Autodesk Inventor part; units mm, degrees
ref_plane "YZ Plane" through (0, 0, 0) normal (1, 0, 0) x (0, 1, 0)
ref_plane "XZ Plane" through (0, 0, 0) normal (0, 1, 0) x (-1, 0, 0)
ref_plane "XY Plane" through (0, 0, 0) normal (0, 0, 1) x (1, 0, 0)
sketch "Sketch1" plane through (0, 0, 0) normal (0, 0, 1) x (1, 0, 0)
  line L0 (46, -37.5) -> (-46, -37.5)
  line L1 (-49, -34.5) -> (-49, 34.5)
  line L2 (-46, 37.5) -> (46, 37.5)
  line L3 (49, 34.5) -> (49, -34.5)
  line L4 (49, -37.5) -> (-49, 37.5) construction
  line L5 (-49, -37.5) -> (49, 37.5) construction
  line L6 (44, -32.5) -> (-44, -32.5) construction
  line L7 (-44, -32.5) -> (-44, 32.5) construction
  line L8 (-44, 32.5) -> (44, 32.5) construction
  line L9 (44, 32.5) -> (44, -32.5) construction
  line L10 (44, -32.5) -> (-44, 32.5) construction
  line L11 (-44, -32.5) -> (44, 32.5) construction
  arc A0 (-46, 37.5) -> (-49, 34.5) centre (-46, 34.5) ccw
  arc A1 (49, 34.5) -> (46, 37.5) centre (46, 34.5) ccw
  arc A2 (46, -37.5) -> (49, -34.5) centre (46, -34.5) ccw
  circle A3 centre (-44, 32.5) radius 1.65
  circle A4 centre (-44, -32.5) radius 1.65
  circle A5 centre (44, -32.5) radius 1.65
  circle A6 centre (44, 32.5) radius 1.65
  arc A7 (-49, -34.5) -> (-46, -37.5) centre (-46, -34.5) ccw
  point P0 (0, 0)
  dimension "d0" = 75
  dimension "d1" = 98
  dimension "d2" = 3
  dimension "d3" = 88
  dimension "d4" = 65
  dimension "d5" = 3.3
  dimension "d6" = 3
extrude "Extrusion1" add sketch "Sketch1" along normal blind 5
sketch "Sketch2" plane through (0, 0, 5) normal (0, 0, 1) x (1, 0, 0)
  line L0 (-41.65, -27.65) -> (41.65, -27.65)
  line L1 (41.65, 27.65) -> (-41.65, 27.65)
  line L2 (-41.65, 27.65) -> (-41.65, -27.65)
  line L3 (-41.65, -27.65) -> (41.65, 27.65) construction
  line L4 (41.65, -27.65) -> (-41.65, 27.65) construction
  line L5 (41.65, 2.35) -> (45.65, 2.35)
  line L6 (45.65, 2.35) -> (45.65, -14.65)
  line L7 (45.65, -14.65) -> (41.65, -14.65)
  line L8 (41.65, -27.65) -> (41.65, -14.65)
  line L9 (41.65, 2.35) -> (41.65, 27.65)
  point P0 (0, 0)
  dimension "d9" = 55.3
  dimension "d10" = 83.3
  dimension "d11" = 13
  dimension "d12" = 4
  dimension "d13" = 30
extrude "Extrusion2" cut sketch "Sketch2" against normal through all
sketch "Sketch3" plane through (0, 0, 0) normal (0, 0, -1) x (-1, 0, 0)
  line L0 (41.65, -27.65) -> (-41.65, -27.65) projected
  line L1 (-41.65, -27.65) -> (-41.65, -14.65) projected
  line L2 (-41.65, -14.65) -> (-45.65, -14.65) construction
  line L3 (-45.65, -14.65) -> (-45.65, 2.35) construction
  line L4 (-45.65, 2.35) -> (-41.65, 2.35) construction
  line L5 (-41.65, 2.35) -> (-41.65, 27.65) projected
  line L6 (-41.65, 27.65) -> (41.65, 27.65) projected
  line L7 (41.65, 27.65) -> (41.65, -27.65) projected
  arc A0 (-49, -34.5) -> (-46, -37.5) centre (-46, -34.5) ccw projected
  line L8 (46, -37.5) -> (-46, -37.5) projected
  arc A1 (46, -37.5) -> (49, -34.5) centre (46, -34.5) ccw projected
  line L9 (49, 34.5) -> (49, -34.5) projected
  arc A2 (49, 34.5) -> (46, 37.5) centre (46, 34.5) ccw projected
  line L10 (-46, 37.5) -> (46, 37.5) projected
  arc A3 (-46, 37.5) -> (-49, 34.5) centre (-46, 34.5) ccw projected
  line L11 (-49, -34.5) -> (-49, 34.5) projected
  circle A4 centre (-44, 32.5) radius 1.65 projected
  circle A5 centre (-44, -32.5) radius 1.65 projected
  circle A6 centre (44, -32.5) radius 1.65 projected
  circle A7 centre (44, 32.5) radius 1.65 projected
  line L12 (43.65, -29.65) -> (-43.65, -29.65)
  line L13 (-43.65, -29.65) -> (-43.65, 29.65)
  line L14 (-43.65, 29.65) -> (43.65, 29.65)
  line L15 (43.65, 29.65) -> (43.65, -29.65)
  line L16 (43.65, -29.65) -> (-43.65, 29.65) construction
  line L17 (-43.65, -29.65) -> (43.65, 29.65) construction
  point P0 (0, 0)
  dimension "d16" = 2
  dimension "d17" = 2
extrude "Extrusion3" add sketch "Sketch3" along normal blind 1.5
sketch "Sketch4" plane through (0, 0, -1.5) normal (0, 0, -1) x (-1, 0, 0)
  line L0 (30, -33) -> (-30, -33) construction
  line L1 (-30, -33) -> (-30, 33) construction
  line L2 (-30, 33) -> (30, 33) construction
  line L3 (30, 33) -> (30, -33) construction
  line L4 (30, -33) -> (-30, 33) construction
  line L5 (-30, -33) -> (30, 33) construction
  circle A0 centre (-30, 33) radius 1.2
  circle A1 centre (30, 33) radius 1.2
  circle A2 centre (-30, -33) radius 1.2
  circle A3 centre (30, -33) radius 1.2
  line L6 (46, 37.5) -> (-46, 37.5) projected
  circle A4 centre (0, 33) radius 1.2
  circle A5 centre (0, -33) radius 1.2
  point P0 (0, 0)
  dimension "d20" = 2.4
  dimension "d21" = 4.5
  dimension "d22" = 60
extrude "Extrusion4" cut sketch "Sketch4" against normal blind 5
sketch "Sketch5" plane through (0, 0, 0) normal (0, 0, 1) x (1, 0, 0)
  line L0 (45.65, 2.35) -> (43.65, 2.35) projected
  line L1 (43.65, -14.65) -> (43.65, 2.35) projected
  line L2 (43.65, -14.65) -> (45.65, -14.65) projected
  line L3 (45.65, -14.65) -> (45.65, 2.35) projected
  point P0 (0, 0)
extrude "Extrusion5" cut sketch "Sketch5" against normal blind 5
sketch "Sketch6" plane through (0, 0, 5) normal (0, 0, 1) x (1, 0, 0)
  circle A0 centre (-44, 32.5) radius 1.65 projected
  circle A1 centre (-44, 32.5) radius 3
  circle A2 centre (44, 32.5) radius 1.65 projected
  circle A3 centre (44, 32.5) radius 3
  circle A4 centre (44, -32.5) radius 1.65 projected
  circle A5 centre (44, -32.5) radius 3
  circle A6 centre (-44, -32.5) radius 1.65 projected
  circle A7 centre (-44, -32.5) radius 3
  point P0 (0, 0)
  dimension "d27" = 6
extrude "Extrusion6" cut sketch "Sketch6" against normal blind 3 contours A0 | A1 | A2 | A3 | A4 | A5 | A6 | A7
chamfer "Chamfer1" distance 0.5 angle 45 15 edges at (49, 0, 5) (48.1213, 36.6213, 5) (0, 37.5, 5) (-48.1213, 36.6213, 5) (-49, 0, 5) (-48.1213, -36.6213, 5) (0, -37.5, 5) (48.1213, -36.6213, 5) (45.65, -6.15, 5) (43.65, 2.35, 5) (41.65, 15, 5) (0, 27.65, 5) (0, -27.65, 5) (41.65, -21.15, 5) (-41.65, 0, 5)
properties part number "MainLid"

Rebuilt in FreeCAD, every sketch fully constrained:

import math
import FreeCAD as App
import Part
import Sketcher

V = App.Vector
Q = App.Units.Quantity


def edges_at(feature, points):
    """Names of the edges that pass closest to the given points."""
    edges = feature.Shape.Edges
    near = lambda p: min(range(len(edges)), key=lambda i: edges[i].distToShape(Part.Vertex(*p))[0])
    return sorted({f"Edge{near(p) + 1}" for p in points})

doc = App.newDocument("Part")
params = doc.addObject("Spreadsheet::Sheet", "Params")
for row, (alias, value) in enumerate([
    ("sketch1_radius", "3 mm"),
    ("sketch1_diameter", "3.3 mm"),
    ("sketch1_width", "92 mm"),
    ("sketch1_height", "69 mm"),
    ("pad1_length", "5 mm"),
    ("sketch2_width", "4 mm"),
    ("sketch2_height", "13 mm"),
    ("sketch2_width2", "83.3 mm"),
    ("sketch2_height2", "55.3 mm"),
    ("sketch3_radius", "3 mm"),
    ("sketch3_diameter", "3.3 mm"),
    ("sketch3_width", "92 mm"),
    ("sketch3_height", "69 mm"),
    ("sketch3_width2", "87.3 mm"),
    ("pad2_length", "1.5 mm"),
    ("sketch4_diameter", "2.4 mm"),
    ("pocket2_length", "5 mm"),
    ("sketch5_width", "2 mm"),
    ("sketch5_height", "17 mm"),
    ("pocket3_length", "5 mm"),
    ("sketch6_diameter", "6 mm"),
    ("pocket4_length", "3 mm"),
    ("chamfer_size", "0.5 mm"),
], start=1):
    params.set(f"A{row}", alias)
    params.set(f"B{row}", "=" + value)
    params.setAlias(f"B{row}", alias)

body = doc.addObject("PartDesign::Body", "Body")

sketch1 = body.newObject("Sketcher::SketchObject", "Sketch")
sketch1.AttachmentSupport = (doc.getObject("XY_Plane"), [""])
sketch1.MapMode = "FlatFace"
sketch1.addGeometry([
    Part.LineSegment(V(-46, -37.5, 0), V(46, -37.5, 0)),
    Part.ArcOfCircle(Part.Circle(V(46, -34.5, 0), V(0, 0, 1), 3), math.radians(-90), math.radians(0)),
    Part.LineSegment(V(49, -34.5, 0), V(49, 34.5, 0)),
    Part.ArcOfCircle(Part.Circle(V(46, 34.5, 0), V(0, 0, 1), 3), math.radians(0), math.radians(90)),
    Part.LineSegment(V(46, 37.5, 0), V(-46, 37.5, 0)),
    Part.ArcOfCircle(Part.Circle(V(-46, 34.5, 0), V(0, 0, 1), 3), math.radians(90), math.radians(180)),
    Part.LineSegment(V(-49, 34.5, 0), V(-49, -34.5, 0)),
    Part.ArcOfCircle(Part.Circle(V(-46, -34.5, 0), V(0, 0, 1), 3), math.radians(180), math.radians(270)),
    Part.Circle(V(-44, -32.5, 0), V(0, 0, 1), 1.6),
    Part.Circle(V(44, -32.5, 0), V(0, 0, 1), 1.6),
    Part.Circle(V(-44, 32.5, 0), V(0, 0, 1), 1.6),
    Part.Circle(V(44, 32.5, 0), V(0, 0, 1), 1.6),
], False)
sketch1.addConstraint([
    Sketcher.Constraint("Tangent", 0, 2, 1, 1),
    Sketcher.Constraint("Tangent", 1, 2, 2, 1),
    Sketcher.Constraint("Tangent", 2, 2, 3, 1),
    Sketcher.Constraint("Tangent", 3, 2, 4, 1),
    Sketcher.Constraint("Tangent", 4, 2, 5, 1),
    Sketcher.Constraint("Tangent", 5, 2, 6, 1),
    Sketcher.Constraint("Tangent", 6, 2, 7, 1),
    Sketcher.Constraint("Tangent", 7, 2, 0, 1),
    Sketcher.Constraint("Horizontal", 0),
    Sketcher.Constraint("Vertical", 2),
    Sketcher.Constraint("Horizontal", 4),
    Sketcher.Constraint("Vertical", 6),
    Sketcher.Constraint("Equal", 1, 3),
    Sketcher.Constraint("Equal", 3, 5),
    Sketcher.Constraint("Equal", 5, 7),
    Sketcher.Constraint("Equal", 8, 9),
    Sketcher.Constraint("Equal", 9, 10),
    Sketcher.Constraint("Equal", 10, 11),
    Sketcher.Constraint("Symmetric", 1, 3, 5, 3, -1, 1),
    Sketcher.Constraint("Symmetric", 9, 3, 10, 3, -1, 1),
    Sketcher.Constraint("Symmetric", 8, 3, 11, 3, -1, 1),
    Sketcher.Constraint("Symmetric", 8, 3, 9, 3, -2),
    Sketcher.Constraint("Radius", 1, Q("3 mm")),
    Sketcher.Constraint("Diameter", 8, Q("3.3 mm")),
    Sketcher.Constraint("DistanceX", 8, 3, 9, 3, Q("88 mm")),
    Sketcher.Constraint("DistanceY", 8, 3, 10, 3, Q("65 mm")),
    Sketcher.Constraint("DistanceX", 0, 1, 0, 2, Q("92 mm")),
    Sketcher.Constraint("DistanceY", 2, 1, 2, 2, Q("69 mm")),
])
sketch1.setExpression("Constraints[22]", "Params.sketch1_radius")
sketch1.setExpression("Constraints[23]", "Params.sketch1_diameter")
sketch1.setExpression("Constraints[26]", "Params.sketch1_width")
sketch1.setExpression("Constraints[27]", "Params.sketch1_height")
pad1 = body.newObject("PartDesign::Pad", "Pad")
pad1.Profile = sketch1
pad1.setExpression("Length", "Params.pad1_length")

sketch2 = body.newObject("Sketcher::SketchObject", "Sketch001")
sketch2.AttachmentSupport = (doc.getObject("XY_Plane"), [""])
sketch2.MapMode = "FlatFace"
sketch2.AttachmentOffset = App.Placement(V(0, 0, 5), App.Rotation())
sketch2.addGeometry([
    Part.LineSegment(V(-41.6, 27.6, 0), V(-41.6, -27.6, 0)),
    Part.LineSegment(V(-41.6, -27.6, 0), V(41.6, -27.6, 0)),
    Part.LineSegment(V(41.6, -27.6, 0), V(41.6, -14.7, 0)),
    Part.LineSegment(V(41.6, -14.7, 0), V(45.6, -14.7, 0)),
    Part.LineSegment(V(45.6, -14.7, 0), V(45.6, 2.4, 0)),
    Part.LineSegment(V(45.6, 2.4, 0), V(41.6, 2.4, 0)),
    Part.LineSegment(V(41.6, 2.4, 0), V(41.6, 27.6, 0)),
    Part.LineSegment(V(41.6, 27.6, 0), V(-41.6, 27.6, 0)),
], False)
sketch2.addConstraint([
    Sketcher.Constraint("Coincident", 0, 2, 1, 1),
    Sketcher.Constraint("Coincident", 1, 2, 2, 1),
    Sketcher.Constraint("Coincident", 2, 2, 3, 1),
    Sketcher.Constraint("Coincident", 3, 2, 4, 1),
    Sketcher.Constraint("Coincident", 4, 2, 5, 1),
    Sketcher.Constraint("Coincident", 5, 2, 6, 1),
    Sketcher.Constraint("Coincident", 6, 2, 7, 1),
    Sketcher.Constraint("Coincident", 7, 2, 0, 1),
    Sketcher.Constraint("Vertical", 0),
    Sketcher.Constraint("Horizontal", 1),
    Sketcher.Constraint("Vertical", 2),
    Sketcher.Constraint("Horizontal", 3),
    Sketcher.Constraint("Vertical", 4),
    Sketcher.Constraint("Horizontal", 5),
    Sketcher.Constraint("Vertical", 6),
    Sketcher.Constraint("Horizontal", 7),
    Sketcher.Constraint("Symmetric", 0, 2, 6, 2, -1, 1),
    Sketcher.Constraint("Vertical", 2, 2, 5, 2),
    Sketcher.Constraint("DistanceX", 3, 1, 3, 2, Q("4 mm")),
    Sketcher.Constraint("DistanceY", 2, 1, 2, 2, Q("13 mm")),
    Sketcher.Constraint("DistanceX", 1, 1, 1, 2, Q("83.3 mm")),
    Sketcher.Constraint("DistanceY", 0, 2, 0, 1, Q("55.3 mm")),
    Sketcher.Constraint("DistanceY", 1, 2, 4, 2, Q("30 mm")),
])
sketch2.setExpression("Constraints[18]", "Params.sketch2_width")
sketch2.setExpression("Constraints[19]", "Params.sketch2_height")
sketch2.setExpression("Constraints[20]", "Params.sketch2_width2")
sketch2.setExpression("Constraints[21]", "Params.sketch2_height2")
pocket1 = body.newObject("PartDesign::Pocket", "Pocket")
pocket1.Profile = sketch2
pocket1.Type = "ThroughAll"

sketch3 = body.newObject("Sketcher::SketchObject", "Sketch002")
sketch3.AttachmentSupport = (doc.getObject("XY_Plane"), [""])
sketch3.MapMode = "FlatFace"
sketch3.addGeometry([
    Part.LineSegment(V(49, 34.5, 0), V(49, -34.5, 0)),
    Part.ArcOfCircle(Part.Circle(V(46, -34.5, 0), V(0, 0, 1), 3), math.radians(-90), math.radians(0)),
    Part.LineSegment(V(46, -37.5, 0), V(-46, -37.5, 0)),
    Part.ArcOfCircle(Part.Circle(V(-46, -34.5, 0), V(0, 0, 1), 3), math.radians(180), math.radians(270)),
    Part.LineSegment(V(-49, -34.5, 0), V(-49, 34.5, 0)),
    Part.ArcOfCircle(Part.Circle(V(-46, 34.5, 0), V(0, 0, 1), 3), math.radians(90), math.radians(180)),
    Part.LineSegment(V(-46, 37.5, 0), V(46, 37.5, 0)),
    Part.ArcOfCircle(Part.Circle(V(46, 34.5, 0), V(0, 0, 1), 3), math.radians(0), math.radians(90)),
    Part.Circle(V(44, -32.5, 0), V(0, 0, 1), 1.6),
    Part.Circle(V(-44, -32.5, 0), V(0, 0, 1), 1.6),
    Part.LineSegment(V(-43.6, 29.6, 0), V(-43.6, -29.6, 0)),
    Part.LineSegment(V(-43.6, -29.6, 0), V(43.6, -29.6, 0)),
    Part.LineSegment(V(43.6, -29.6, 0), V(43.6, 29.6, 0)),
    Part.LineSegment(V(43.6, 29.6, 0), V(-43.6, 29.6, 0)),
    Part.Circle(V(44, 32.5, 0), V(0, 0, 1), 1.6),
    Part.Circle(V(-44, 32.5, 0), V(0, 0, 1), 1.6),
], False)
sketch3.addConstraint([
    Sketcher.Constraint("Tangent", 0, 2, 1, 2),
    Sketcher.Constraint("Tangent", 1, 1, 2, 1),
    Sketcher.Constraint("Tangent", 2, 2, 3, 2),
    Sketcher.Constraint("Tangent", 3, 1, 4, 1),
    Sketcher.Constraint("Tangent", 4, 2, 5, 2),
    Sketcher.Constraint("Tangent", 5, 1, 6, 1),
    Sketcher.Constraint("Tangent", 6, 2, 7, 2),
    Sketcher.Constraint("Tangent", 7, 1, 0, 1),
    Sketcher.Constraint("Coincident", 10, 2, 11, 1),
    Sketcher.Constraint("Coincident", 11, 2, 12, 1),
    Sketcher.Constraint("Coincident", 12, 2, 13, 1),
    Sketcher.Constraint("Coincident", 13, 2, 10, 1),
    Sketcher.Constraint("Vertical", 0),
    Sketcher.Constraint("Horizontal", 2),
    Sketcher.Constraint("Vertical", 4),
    Sketcher.Constraint("Horizontal", 6),
    Sketcher.Constraint("Vertical", 10),
    Sketcher.Constraint("Horizontal", 11),
    Sketcher.Constraint("Vertical", 12),
    Sketcher.Constraint("Horizontal", 13),
    Sketcher.Constraint("Equal", 1, 3),
    Sketcher.Constraint("Equal", 3, 5),
    Sketcher.Constraint("Equal", 5, 7),
    Sketcher.Constraint("Equal", 8, 9),
    Sketcher.Constraint("Equal", 9, 14),
    Sketcher.Constraint("Equal", 14, 15),
    Sketcher.Constraint("Symmetric", 1, 3, 5, 3, -1, 1),
    Sketcher.Constraint("Symmetric", 9, 3, 14, 3, -1, 1),
    Sketcher.Constraint("Symmetric", 8, 3, 15, 3, -1, 1),
    Sketcher.Constraint("Symmetric", 10, 2, 12, 2, -1, 1),
    Sketcher.Constraint("Symmetric", 8, 3, 9, 3, -2),
    Sketcher.Constraint("Radius", 1, Q("3 mm")),
    Sketcher.Constraint("DistanceX", 8, 3, 1, 3, Q("2 mm")),
    Sketcher.Constraint("DistanceY", 1, 3, 8, 3, Q("2 mm")),
    Sketcher.Constraint("Diameter", 8, Q("3.3 mm")),
    Sketcher.Constraint("DistanceX", 2, 2, 2, 1, Q("92 mm")),
    Sketcher.Constraint("DistanceY", 0, 2, 0, 1, Q("69 mm")),
    Sketcher.Constraint("DistanceX", 11, 1, 11, 2, Q("87.3 mm")),
    Sketcher.Constraint("DistanceY", 10, 2, 10, 1, Q("59.3 mm")),
])
sketch3.setExpression("Constraints[31]", "Params.sketch3_radius")
sketch3.setExpression("Constraints[34]", "Params.sketch3_diameter")
sketch3.setExpression("Constraints[35]", "Params.sketch3_width")
sketch3.setExpression("Constraints[36]", "Params.sketch3_height")
sketch3.setExpression("Constraints[37]", "Params.sketch3_width2")
pad2 = body.newObject("PartDesign::Pad", "Pad001")
pad2.Profile = sketch3
pad2.setExpression("Length", "Params.pad2_length")
pad2.Reversed = True

sketch4 = body.newObject("Sketcher::SketchObject", "Sketch003")
sketch4.AttachmentSupport = (doc.getObject("XY_Plane"), [""])
sketch4.MapMode = "FlatFace"
sketch4.AttachmentOffset = App.Placement(V(0, 0, -1.5), App.Rotation())
sketch4.addGeometry([
    Part.Circle(V(30, 33, 0), V(0, 0, 1), 1.2),
    Part.Circle(V(-30, 33, 0), V(0, 0, 1), 1.2),
    Part.Circle(V(30, -33, 0), V(0, 0, 1), 1.2),
    Part.Circle(V(-30, -33, 0), V(0, 0, 1), 1.2),
    Part.Circle(V(0, 33, 0), V(0, 0, 1), 1.2),
    Part.Circle(V(0, -33, 0), V(0, 0, 1), 1.2),
], False)
sketch4.addConstraint([
    Sketcher.Constraint("Equal", 0, 1),
    Sketcher.Constraint("Equal", 1, 2),
    Sketcher.Constraint("Equal", 2, 3),
    Sketcher.Constraint("Equal", 3, 4),
    Sketcher.Constraint("Equal", 4, 5),
    Sketcher.Constraint("Symmetric", 1, 3, 2, 3, -1, 1),
    Sketcher.Constraint("Symmetric", 0, 3, 3, 3, -1, 1),
    Sketcher.Constraint("Symmetric", 4, 3, 5, 3, -1, 1),
    Sketcher.Constraint("Symmetric", 0, 3, 1, 3, -2),
    Sketcher.Constraint("PointOnObject", 4, 3, -2),
    Sketcher.Constraint("Horizontal", 1, 3, 4, 3),
    Sketcher.Constraint("Diameter", 0, Q("2.4 mm")),
    Sketcher.Constraint("DistanceX", 1, 3, 0, 3, Q("60 mm")),
    Sketcher.Constraint("DistanceY", -1, 1, 0, 3, Q("33 mm")),
])
sketch4.setExpression("Constraints[11]", "Params.sketch4_diameter")
pocket2 = body.newObject("PartDesign::Pocket", "Pocket001")
pocket2.Profile = sketch4
pocket2.setExpression("Length", "Params.pocket2_length")
pocket2.Reversed = True

sketch5 = body.newObject("Sketcher::SketchObject", "Sketch004")
sketch5.AttachmentSupport = (doc.getObject("XY_Plane"), [""])
sketch5.MapMode = "FlatFace"
sketch5.addGeometry([
    Part.LineSegment(V(45.6, -14.7, 0), V(45.6, 2.4, 0)),
    Part.LineSegment(V(45.6, 2.4, 0), V(43.6, 2.4, 0)),
    Part.LineSegment(V(43.6, 2.4, 0), V(43.6, -14.7, 0)),
    Part.LineSegment(V(43.6, -14.7, 0), V(45.6, -14.7, 0)),
], False)
sketch5.addConstraint([
    Sketcher.Constraint("Coincident", 0, 2, 1, 1),
    Sketcher.Constraint("Coincident", 1, 2, 2, 1),
    Sketcher.Constraint("Coincident", 2, 2, 3, 1),
    Sketcher.Constraint("Coincident", 3, 2, 0, 1),
    Sketcher.Constraint("Vertical", 0),
    Sketcher.Constraint("Horizontal", 1),
    Sketcher.Constraint("Vertical", 2),
    Sketcher.Constraint("Horizontal", 3),
    Sketcher.Constraint("DistanceX", 1, 2, 1, 1, Q("2 mm")),
    Sketcher.Constraint("DistanceY", 0, 1, 0, 2, Q("17 mm")),
    Sketcher.Constraint("DistanceX", -1, 1, 0, 2, Q("45.65 mm")),
    Sketcher.Constraint("DistanceY", -1, 1, 0, 2, Q("2.35 mm")),
])
sketch5.setExpression("Constraints[8]", "Params.sketch5_width")
sketch5.setExpression("Constraints[9]", "Params.sketch5_height")
pocket3 = body.newObject("PartDesign::Pocket", "Pocket002")
pocket3.Profile = sketch5
pocket3.setExpression("Length", "Params.pocket3_length")

sketch6 = body.newObject("Sketcher::SketchObject", "Sketch005")
sketch6.AttachmentSupport = (doc.getObject("XY_Plane"), [""])
sketch6.MapMode = "FlatFace"
sketch6.AttachmentOffset = App.Placement(V(0, 0, 5), App.Rotation())
sketch6.addGeometry([
    Part.Circle(V(-44, 32.5, 0), V(0, 0, 1), 3),
    Part.Circle(V(44, 32.5, 0), V(0, 0, 1), 3),
    Part.Circle(V(44, -32.5, 0), V(0, 0, 1), 3),
    Part.Circle(V(-44, -32.5, 0), V(0, 0, 1), 3),
], False)
sketch6.addConstraint([
    Sketcher.Constraint("Equal", 0, 1),
    Sketcher.Constraint("Equal", 1, 2),
    Sketcher.Constraint("Equal", 2, 3),
    Sketcher.Constraint("Symmetric", 0, 3, 2, 3, -1, 1),
    Sketcher.Constraint("Symmetric", 1, 3, 3, 3, -1, 1),
    Sketcher.Constraint("Symmetric", 0, 3, 1, 3, -2),
    Sketcher.Constraint("Diameter", 0, Q("6 mm")),
    Sketcher.Constraint("DistanceX", 0, 3, -1, 1, Q("44 mm")),
    Sketcher.Constraint("DistanceY", 2, 3, 1, 3, Q("65 mm")),
])
sketch6.setExpression("Constraints[6]", "Params.sketch6_diameter")
pocket4 = body.newObject("PartDesign::Pocket", "Pocket003")
pocket4.Profile = sketch6
pocket4.setExpression("Length", "Params.pocket4_length")
doc.recompute()

chamfer = body.newObject("PartDesign::Chamfer", "Chamfer")
chamfer.Base = (pocket4, edges_at(pocket4, [
    (49, 0, 5),
    (48.121, 36.621, 5),
    (0, 37.5, 5),
    (-48.121, 36.621, 5),
    (-49, 0, 5),
    (-48.121, -36.621, 5),
    (0, -37.5, 5),
    (48.121, -36.621, 5),
    (45.65, -6.15, 5),
    (43.65, 2.35, 5),
    (41.65, 15, 5),
    (0, 27.65, 5),
    (0, -27.65, 5),
    (41.65, -21.15, 5),
    (-41.65, 0, 5),
]))
chamfer.setExpression("Size", "Params.chamfer_size")

doc.recompute()
